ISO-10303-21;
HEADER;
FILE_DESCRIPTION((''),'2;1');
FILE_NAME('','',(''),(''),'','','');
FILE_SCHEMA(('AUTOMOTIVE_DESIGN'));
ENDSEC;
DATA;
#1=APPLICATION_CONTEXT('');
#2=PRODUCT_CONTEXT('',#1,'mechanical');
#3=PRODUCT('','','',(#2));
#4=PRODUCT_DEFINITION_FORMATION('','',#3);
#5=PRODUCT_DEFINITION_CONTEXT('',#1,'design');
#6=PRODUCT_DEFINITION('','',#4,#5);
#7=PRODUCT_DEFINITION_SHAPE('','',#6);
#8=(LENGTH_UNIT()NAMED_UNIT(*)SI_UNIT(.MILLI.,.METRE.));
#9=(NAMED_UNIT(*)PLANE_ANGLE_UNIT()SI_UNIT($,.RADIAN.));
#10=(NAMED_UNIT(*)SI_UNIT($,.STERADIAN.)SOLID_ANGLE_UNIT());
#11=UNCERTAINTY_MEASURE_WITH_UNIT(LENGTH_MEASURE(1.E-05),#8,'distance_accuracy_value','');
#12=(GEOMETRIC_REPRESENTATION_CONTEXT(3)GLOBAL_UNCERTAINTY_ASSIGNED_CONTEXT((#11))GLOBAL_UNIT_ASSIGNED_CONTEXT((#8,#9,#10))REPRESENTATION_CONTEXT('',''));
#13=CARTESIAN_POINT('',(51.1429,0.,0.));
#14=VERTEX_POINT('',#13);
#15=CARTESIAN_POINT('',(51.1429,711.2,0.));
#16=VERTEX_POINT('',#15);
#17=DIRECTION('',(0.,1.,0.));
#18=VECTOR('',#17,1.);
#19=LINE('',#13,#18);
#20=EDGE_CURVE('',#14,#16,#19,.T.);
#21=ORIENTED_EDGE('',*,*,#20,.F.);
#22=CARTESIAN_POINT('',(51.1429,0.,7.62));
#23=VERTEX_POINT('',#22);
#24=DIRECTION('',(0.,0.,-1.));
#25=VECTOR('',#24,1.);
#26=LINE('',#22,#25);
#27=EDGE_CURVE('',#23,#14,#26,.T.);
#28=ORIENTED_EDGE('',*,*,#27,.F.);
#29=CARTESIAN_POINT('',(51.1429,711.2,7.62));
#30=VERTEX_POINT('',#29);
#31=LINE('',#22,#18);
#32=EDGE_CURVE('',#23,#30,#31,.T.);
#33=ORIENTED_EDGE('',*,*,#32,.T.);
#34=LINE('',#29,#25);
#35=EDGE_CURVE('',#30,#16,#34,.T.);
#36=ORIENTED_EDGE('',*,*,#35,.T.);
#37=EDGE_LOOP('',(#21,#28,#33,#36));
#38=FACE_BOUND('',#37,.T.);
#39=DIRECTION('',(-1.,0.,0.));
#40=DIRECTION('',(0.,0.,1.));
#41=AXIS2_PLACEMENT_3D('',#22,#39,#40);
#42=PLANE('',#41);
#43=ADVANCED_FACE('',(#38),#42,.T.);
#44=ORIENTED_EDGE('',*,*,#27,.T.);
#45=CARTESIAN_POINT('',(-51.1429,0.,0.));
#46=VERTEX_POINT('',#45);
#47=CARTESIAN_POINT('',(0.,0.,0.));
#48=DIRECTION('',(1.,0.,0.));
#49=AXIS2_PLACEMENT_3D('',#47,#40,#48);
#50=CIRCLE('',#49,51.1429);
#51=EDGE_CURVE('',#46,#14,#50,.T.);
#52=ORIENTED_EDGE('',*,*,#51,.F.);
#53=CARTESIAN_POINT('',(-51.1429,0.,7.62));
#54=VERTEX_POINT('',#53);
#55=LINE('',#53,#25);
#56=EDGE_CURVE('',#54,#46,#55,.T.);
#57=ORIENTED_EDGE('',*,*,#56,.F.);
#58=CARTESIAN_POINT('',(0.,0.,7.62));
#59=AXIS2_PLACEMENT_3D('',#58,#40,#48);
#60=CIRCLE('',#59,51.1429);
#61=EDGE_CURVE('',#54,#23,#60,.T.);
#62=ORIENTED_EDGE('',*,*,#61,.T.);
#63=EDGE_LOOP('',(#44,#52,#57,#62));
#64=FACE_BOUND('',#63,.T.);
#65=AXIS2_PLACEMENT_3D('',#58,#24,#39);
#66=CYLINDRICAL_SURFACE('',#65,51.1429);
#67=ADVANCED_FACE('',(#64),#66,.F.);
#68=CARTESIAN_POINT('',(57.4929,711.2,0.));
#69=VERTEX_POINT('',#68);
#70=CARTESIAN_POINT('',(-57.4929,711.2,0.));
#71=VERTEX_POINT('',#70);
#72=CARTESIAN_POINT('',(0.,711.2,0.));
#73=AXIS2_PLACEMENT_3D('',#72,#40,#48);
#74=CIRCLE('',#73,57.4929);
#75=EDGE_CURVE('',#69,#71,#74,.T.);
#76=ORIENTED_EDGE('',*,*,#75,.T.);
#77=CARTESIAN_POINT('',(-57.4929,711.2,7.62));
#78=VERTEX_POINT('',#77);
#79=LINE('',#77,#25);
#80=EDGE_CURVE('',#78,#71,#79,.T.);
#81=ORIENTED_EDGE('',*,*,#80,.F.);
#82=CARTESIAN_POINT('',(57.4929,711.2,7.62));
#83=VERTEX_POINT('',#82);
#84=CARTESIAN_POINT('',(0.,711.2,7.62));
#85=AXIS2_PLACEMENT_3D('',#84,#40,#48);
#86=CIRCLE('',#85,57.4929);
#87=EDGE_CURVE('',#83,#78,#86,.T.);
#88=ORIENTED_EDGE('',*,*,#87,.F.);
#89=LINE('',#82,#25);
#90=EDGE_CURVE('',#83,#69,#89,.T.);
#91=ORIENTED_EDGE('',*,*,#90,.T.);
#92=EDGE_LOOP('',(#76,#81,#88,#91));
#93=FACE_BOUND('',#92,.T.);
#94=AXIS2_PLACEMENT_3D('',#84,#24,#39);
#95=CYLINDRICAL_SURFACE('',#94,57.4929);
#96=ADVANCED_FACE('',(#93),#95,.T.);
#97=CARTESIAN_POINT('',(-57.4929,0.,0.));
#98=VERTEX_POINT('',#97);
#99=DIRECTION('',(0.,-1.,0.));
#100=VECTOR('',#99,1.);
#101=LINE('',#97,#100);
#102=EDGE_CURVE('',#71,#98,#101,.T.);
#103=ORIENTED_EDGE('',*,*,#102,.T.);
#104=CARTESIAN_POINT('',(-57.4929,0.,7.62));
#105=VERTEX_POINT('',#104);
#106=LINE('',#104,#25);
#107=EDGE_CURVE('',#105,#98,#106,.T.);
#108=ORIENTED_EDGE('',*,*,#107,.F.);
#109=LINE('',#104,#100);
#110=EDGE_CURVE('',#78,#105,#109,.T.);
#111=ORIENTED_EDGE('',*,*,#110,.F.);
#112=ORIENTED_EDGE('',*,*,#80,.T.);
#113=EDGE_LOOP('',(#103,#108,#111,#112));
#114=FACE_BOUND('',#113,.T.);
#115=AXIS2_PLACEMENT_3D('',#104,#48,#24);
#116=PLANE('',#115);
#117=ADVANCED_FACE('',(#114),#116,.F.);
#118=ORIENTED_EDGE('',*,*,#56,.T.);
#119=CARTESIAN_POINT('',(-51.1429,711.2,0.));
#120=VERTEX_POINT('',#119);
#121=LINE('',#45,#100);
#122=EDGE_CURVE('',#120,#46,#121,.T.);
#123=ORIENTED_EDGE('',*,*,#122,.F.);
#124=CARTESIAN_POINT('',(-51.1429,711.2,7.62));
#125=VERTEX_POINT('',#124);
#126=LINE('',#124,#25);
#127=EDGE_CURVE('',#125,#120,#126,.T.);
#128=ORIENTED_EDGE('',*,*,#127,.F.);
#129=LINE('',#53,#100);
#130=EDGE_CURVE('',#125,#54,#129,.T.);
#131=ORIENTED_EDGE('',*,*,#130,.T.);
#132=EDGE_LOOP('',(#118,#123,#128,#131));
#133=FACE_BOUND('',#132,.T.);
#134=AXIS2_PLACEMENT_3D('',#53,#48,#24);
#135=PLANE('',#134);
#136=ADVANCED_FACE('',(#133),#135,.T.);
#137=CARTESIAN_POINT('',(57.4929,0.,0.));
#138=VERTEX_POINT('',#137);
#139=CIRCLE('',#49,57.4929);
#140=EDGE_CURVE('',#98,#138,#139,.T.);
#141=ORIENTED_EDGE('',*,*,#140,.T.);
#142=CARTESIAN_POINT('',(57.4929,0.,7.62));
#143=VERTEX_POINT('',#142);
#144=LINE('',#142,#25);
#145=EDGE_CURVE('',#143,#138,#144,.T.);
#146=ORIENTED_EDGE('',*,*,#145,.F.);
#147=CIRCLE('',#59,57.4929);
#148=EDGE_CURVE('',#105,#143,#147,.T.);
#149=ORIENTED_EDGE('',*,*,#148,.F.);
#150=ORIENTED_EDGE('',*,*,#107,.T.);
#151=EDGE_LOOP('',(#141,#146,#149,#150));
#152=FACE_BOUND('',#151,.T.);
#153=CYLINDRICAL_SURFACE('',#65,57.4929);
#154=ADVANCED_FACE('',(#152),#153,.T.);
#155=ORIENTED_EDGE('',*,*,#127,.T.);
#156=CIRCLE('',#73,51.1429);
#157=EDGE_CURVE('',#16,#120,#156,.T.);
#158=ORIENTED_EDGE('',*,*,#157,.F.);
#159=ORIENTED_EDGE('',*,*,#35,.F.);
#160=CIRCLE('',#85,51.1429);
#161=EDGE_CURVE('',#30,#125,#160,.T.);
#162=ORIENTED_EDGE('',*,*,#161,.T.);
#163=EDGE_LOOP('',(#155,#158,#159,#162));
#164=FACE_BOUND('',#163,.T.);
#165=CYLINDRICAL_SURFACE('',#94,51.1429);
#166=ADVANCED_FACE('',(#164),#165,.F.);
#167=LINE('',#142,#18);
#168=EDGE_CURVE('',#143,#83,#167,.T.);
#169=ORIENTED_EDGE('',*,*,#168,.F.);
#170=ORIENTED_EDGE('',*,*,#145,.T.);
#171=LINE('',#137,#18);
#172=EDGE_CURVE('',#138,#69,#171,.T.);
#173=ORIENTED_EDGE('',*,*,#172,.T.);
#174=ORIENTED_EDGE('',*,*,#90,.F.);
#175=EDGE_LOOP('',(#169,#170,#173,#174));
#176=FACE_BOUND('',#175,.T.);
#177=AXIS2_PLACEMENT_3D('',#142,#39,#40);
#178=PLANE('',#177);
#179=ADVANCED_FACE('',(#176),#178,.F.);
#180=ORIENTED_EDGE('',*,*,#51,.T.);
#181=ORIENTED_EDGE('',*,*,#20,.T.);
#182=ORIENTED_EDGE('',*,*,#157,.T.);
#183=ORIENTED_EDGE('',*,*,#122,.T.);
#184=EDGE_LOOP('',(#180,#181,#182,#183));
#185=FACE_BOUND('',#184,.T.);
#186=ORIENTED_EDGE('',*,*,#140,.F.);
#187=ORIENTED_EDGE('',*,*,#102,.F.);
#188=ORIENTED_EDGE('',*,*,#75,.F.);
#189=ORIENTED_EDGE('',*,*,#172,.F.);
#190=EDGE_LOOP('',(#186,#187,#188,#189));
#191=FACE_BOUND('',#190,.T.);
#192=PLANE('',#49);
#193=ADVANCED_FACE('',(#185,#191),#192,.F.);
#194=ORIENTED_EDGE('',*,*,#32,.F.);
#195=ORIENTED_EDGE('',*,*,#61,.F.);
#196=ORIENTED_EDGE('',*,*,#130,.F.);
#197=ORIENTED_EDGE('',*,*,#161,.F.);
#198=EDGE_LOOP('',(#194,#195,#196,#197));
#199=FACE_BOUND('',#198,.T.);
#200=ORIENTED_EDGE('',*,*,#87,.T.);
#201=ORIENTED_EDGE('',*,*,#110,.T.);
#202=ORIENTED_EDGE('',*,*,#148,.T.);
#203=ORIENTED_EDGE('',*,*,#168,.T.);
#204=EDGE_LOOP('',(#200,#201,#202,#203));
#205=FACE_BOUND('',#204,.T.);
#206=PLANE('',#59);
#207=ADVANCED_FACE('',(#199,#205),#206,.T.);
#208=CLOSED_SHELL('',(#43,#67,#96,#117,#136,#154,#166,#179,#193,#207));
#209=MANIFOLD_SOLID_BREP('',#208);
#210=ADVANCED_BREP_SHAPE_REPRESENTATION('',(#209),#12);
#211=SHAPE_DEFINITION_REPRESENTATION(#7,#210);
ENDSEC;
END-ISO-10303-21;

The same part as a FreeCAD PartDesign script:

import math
import FreeCAD as App
import Part
import Sketcher
from FreeCAD import Vector
Q = App.Units.Quantity

doc = App.newDocument("Part")
params = doc.addObject("Spreadsheet::Sheet", "Params")
for row, (alias, value) in enumerate([
    ("sketch1_height", "28 in"),
    ("pad1_length", "0.3 in"),
], start=1):
    params.set(f"A{row}", alias)
    params.set(f"B{row}", "=" + value)
    params.setAlias(f"B{row}", alias)

body = doc.addObject("PartDesign::Body", "Body")

sketch1 = body.newObject("Sketcher::SketchObject", "Sketch")
sketch1.AttachmentSupport = (doc.getObject("XY_Plane"), [""])
sketch1.MapMode = "FlatFace"
sketch1.addGeometry([
    Part.LineSegment(Vector(-57, 711, 0), Vector(-57, 0, 0)),
    Part.ArcOfCircle(Part.Circle(Vector(0, 0, 0), Vector(0, 0, 1), 57), math.radians(180), math.radians(360)),
    Part.LineSegment(Vector(57, 0, 0), Vector(57, 711, 0)),
    Part.ArcOfCircle(Part.Circle(Vector(0, 711, 0), Vector(0, 0, 1), 57), math.radians(0), math.radians(180)),
    Part.LineSegment(Vector(-51, 0, 0), Vector(-51, 711, 0)),
    Part.ArcOfCircle(Part.Circle(Vector(0, 711, 0), Vector(0, 0, 1), 51), math.radians(0), math.radians(180)),
    Part.LineSegment(Vector(51, 711, 0), Vector(51, 0, 0)),
    Part.ArcOfCircle(Part.Circle(Vector(0, 0, 0), Vector(0, 0, 1), 51), math.radians(180), math.radians(360)),
], False)
sketch1.addConstraint([
    Sketcher.Constraint("Tangent", 0, 2, 1, 1),
    Sketcher.Constraint("Tangent", 1, 2, 2, 1),
    Sketcher.Constraint("Tangent", 2, 2, 3, 1),
    Sketcher.Constraint("Tangent", 3, 2, 0, 1),
    Sketcher.Constraint("Tangent", 4, 2, 5, 2),
    Sketcher.Constraint("Tangent", 5, 1, 6, 1),
    Sketcher.Constraint("Tangent", 6, 2, 7, 2),
    Sketcher.Constraint("Tangent", 7, 1, 4, 1),
    Sketcher.Constraint("Vertical", 0),
    Sketcher.Constraint("Vertical", 2),
    Sketcher.Constraint("Vertical", 4),
    Sketcher.Constraint("Vertical", 6),
    Sketcher.Constraint("Coincident", 1, 3, -1, 1),
    Sketcher.Constraint("Coincident", 7, 3, -1, 1),
    Sketcher.Constraint("Horizontal", 5, 3, 2, 2),
    Sketcher.Constraint("DistanceY", 0, 2, 0, 1, Q("28 in")),
    Sketcher.Constraint("Radius", 1, Q("2.2635 in")),
    Sketcher.Constraint("Radius", 5, Q("2.0135 in")),
])
sketch1.setExpression("Constraints[15]", "Params.sketch1_height")
pad1 = body.newObject("PartDesign::Pad", "Pad")
pad1.Profile = sketch1
pad1.setExpression("Length", "Params.pad1_length")

doc.recompute()
